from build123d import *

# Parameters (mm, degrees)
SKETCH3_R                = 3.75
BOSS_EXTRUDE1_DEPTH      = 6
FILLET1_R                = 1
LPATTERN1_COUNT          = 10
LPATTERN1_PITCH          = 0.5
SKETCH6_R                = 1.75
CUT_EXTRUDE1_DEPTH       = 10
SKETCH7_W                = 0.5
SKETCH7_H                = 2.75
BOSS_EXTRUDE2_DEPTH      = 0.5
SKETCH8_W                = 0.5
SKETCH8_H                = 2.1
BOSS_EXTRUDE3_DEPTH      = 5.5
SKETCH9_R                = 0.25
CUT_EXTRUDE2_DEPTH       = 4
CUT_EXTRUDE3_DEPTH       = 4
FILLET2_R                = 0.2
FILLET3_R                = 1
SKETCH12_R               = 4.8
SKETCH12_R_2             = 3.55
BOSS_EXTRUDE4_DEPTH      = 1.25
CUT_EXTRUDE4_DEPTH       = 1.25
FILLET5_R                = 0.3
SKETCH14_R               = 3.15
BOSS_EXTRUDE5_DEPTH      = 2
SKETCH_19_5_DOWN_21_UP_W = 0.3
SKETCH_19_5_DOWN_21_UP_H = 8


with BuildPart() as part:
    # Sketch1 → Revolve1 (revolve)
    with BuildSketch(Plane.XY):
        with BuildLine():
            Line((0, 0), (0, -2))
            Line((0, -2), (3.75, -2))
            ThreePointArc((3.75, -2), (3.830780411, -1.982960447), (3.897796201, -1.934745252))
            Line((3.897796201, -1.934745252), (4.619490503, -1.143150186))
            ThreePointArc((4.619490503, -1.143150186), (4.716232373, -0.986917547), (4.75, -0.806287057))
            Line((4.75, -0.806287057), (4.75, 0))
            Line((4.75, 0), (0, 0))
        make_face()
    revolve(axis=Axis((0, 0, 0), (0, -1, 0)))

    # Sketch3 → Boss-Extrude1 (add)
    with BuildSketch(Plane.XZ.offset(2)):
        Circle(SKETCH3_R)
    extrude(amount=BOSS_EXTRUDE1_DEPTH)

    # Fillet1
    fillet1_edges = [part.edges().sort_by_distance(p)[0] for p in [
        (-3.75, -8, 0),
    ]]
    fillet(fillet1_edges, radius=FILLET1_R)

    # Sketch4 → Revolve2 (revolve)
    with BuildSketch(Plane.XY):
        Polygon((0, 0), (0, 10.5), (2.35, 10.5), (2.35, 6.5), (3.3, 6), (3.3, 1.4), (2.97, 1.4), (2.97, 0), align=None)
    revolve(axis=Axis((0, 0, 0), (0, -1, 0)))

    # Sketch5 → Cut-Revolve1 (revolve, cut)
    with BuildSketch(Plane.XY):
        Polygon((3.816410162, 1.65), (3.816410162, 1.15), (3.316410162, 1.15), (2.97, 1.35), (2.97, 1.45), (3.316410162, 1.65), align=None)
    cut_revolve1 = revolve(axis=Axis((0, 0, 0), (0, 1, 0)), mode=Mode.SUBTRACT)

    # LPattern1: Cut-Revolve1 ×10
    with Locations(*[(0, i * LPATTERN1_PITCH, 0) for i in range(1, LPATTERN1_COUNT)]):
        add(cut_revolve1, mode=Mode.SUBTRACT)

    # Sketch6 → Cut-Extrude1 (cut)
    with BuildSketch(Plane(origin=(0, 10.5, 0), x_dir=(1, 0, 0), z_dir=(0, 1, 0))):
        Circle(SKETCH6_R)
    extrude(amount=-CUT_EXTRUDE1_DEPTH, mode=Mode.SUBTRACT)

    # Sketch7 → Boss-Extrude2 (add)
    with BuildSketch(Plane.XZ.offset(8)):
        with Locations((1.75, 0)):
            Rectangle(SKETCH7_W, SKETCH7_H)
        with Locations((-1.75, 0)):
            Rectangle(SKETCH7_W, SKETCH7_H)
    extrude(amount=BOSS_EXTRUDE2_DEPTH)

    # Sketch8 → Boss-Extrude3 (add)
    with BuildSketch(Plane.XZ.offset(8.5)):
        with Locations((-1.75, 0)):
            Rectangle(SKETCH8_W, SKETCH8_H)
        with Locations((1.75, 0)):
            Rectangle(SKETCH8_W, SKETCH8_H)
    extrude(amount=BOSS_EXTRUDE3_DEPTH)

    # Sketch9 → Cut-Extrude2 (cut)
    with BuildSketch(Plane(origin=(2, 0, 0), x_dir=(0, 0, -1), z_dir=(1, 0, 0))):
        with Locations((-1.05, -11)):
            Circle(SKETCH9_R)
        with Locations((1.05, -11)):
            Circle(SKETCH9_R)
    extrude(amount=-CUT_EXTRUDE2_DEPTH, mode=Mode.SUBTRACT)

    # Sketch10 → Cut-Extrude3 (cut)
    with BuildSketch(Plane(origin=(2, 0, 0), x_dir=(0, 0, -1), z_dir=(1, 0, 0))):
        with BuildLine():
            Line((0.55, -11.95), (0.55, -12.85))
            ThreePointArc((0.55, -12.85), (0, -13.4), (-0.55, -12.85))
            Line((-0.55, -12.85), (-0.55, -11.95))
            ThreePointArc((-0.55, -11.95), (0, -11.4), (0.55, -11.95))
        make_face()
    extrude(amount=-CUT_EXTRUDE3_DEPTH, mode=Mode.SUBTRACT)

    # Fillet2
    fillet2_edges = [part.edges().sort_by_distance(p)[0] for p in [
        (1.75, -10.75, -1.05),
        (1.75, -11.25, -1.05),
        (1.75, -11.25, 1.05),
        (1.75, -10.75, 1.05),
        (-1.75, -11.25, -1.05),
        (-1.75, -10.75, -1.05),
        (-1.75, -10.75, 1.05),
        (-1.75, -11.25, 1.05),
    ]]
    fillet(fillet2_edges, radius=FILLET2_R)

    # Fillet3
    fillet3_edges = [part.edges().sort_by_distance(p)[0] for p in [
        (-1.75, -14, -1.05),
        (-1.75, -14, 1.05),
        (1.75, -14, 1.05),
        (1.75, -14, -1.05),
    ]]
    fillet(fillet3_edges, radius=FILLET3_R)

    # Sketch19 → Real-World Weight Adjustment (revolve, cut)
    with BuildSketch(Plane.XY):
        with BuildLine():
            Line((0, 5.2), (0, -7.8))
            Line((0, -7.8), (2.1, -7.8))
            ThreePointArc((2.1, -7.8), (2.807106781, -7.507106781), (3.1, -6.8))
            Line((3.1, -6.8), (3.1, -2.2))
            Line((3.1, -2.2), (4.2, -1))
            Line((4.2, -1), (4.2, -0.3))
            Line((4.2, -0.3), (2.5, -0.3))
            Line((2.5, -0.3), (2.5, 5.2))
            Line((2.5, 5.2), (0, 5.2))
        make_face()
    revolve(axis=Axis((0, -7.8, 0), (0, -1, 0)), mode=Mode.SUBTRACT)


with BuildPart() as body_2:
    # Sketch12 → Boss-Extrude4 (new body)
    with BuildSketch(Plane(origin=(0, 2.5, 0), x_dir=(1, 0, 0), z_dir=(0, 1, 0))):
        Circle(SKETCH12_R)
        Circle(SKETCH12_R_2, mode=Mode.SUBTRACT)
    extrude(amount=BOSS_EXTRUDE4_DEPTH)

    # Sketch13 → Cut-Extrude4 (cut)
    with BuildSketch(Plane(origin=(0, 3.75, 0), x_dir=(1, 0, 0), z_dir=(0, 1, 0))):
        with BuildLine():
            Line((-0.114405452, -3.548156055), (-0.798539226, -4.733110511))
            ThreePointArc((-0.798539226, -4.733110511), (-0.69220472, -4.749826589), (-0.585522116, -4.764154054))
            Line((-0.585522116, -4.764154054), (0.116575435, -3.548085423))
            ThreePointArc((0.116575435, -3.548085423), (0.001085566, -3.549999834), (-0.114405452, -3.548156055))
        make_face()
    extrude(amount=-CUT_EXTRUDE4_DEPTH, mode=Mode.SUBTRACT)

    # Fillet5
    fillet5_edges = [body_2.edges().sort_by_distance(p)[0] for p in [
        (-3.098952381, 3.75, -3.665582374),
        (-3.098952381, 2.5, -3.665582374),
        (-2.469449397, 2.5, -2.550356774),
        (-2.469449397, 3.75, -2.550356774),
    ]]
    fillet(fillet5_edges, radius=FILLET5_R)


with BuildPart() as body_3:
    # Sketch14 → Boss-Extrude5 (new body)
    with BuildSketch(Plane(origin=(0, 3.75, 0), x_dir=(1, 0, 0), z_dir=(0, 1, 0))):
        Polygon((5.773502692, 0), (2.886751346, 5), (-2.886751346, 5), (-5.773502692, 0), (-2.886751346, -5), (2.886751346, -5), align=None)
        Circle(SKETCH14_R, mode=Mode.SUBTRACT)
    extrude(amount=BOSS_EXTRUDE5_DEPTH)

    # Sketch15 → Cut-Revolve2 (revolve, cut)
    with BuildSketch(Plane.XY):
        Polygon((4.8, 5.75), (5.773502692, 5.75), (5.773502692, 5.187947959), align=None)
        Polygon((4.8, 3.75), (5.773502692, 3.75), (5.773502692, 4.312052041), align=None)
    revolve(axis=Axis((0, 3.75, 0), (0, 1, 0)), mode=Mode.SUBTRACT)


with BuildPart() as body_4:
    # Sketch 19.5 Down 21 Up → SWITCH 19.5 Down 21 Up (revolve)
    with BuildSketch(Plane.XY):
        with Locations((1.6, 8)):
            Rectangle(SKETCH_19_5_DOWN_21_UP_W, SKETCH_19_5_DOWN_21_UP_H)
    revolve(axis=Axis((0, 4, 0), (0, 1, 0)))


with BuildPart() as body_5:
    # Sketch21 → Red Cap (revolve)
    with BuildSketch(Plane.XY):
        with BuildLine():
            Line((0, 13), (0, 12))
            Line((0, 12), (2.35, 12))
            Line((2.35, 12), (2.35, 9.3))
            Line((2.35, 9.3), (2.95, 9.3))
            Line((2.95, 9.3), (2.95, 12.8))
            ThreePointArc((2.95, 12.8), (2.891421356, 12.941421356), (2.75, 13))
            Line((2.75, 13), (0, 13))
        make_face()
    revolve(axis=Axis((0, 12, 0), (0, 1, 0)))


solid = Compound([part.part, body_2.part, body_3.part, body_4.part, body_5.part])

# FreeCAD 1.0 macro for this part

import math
import FreeCAD as App
import Part
import Sketcher

V = App.Vector
Q = App.Units.Quantity


def edges_at(feature, points):
    """Names of the edges that pass closest to the given points."""
    edges = feature.Shape.Edges
    near = lambda p: min(range(len(edges)), key=lambda i: edges[i].distToShape(Part.Vertex(*p))[0])
    return sorted({f"Edge{near(p) + 1}" for p in points})

doc = App.newDocument("Part")
body = doc.addObject("PartDesign::Body", "Body")

# Sketch on XY plane
sketch1 = body.newObject("Sketcher::SketchObject", "Sketch")
sketch1.AttachmentSupport = (doc.getObject("XY_Plane"), [""])
sketch1.MapMode = "FlatFace"
sketch1.addGeometry(Part.LineSegment(V(0, 0, 0), V(0, -2, 0)), False)
sketch1.addGeometry(Part.LineSegment(V(0, -2, 0), V(3.75, -2, 0)), False)
sketch1.addGeometry(Part.ArcOfCircle(Part.Circle(V(3.75, -1.8, 0), V(0, 0, 1), 0.2), math.radians(-90), math.radians(-42)), False)
sketch1.addGeometry(Part.LineSegment(V(3.9, -1.93, 0), V(4.62, -1.14, 0)), False)
sketch1.addGeometry(Part.ArcOfCircle(Part.Circle(V(4.25, -0.81, 0), V(0, 0, 1), 0.5), math.radians(-42), math.radians(0)), False)
sketch1.addGeometry(Part.LineSegment(V(4.75, -0.81, 0), V(4.75, 0, 0)), False)
sketch1.addGeometry(Part.LineSegment(V(4.75, 0, 0), V(0, 0, 0)), False)
sketch1.addConstraint(Sketcher.Constraint("Coincident", 0, 2, 1, 1))
sketch1.addConstraint(Sketcher.Constraint("Tangent", 1, 2, 2, 1))
sketch1.addConstraint(Sketcher.Constraint("Tangent", 2, 2, 3, 1))
sketch1.addConstraint(Sketcher.Constraint("Tangent", 3, 2, 4, 1))
sketch1.addConstraint(Sketcher.Constraint("Tangent", 4, 2, 5, 1))
sketch1.addConstraint(Sketcher.Constraint("Coincident", 5, 2, 6, 1))
sketch1.addConstraint(Sketcher.Constraint("Coincident", 6, 2, 0, 1))
sketch1.addConstraint(Sketcher.Constraint("Vertical", 0))
sketch1.addConstraint(Sketcher.Constraint("Horizontal", 1))
sketch1.addConstraint(Sketcher.Constraint("Vertical", 5))
sketch1.addConstraint(Sketcher.Constraint("Horizontal", 6))
sketch1.addConstraint(Sketcher.Constraint("Coincident", 6, 2, -1, 1))
sketch1.addConstraint(Sketcher.Constraint("Radius", 2, 0.2))
sketch1.addConstraint(Sketcher.Constraint("Radius", 4, 0.5))
sketch1.addConstraint(Sketcher.Constraint("DistanceY", 0, 2, 0, 1, 2.0))
sketch1.addConstraint(Sketcher.Constraint("DistanceX", 2, 3, 4, 2, 1.0))
sketch1.addConstraint(Sketcher.Constraint("DistanceX", 1, 1, 1, 2, 3.75))
sketch1.addConstraint(Sketcher.Constraint("Distance", 3, 1.071198))
revolution = body.newObject("PartDesign::Revolution", "Revolution")
revolution.Profile = sketch1
revolution.ReferenceAxis = (sketch1, ["V_Axis"])
revolution.Angle = 360

# Sketch on XZ plane
sketch2 = body.newObject("Sketcher::SketchObject", "Sketch001")
sketch2.AttachmentSupport = (doc.getObject("XZ_Plane"), [""])
sketch2.MapMode = "FlatFace"
sketch2.AttachmentOffset = App.Placement(V(0, 0, 2), App.Rotation())
sketch2.addGeometry(Part.Circle(V(0, 0, 0), V(0, 0, 1), 3.8), False)
sketch2.addConstraint(Sketcher.Constraint("Coincident", 0, 3, -1, 1))
sketch2.addConstraint(Sketcher.Constraint("Diameter", 0, 7.5))
pad1 = body.newObject("PartDesign::Pad", "Pad")
pad1.Profile = sketch2
pad1.Length = 6
doc.recompute()

fillet = body.newObject("PartDesign::Fillet", "Fillet")
fillet.Base = (pad1, edges_at(pad1, [(-3.75, -8, 0)]))
fillet.Radius = 1

# Sketch on XY plane
sketch3 = body.newObject("Sketcher::SketchObject", "Sketch002")
sketch3.AttachmentSupport = (doc.getObject("XY_Plane"), [""])
sketch3.MapMode = "FlatFace"
sketch3.addGeometry(Part.LineSegment(V(0, 10.5, 0), V(0, 0, 0)), False)
sketch3.addGeometry(Part.LineSegment(V(0, 0, 0), V(2.97, 0, 0)), False)
sketch3.addGeometry(Part.LineSegment(V(2.97, 0, 0), V(2.97, 1.4, 0)), False)
sketch3.addGeometry(Part.LineSegment(V(2.97, 1.4, 0), V(3.3, 1.4, 0)), False)
sketch3.addGeometry(Part.LineSegment(V(3.3, 1.4, 0), V(3.3, 6, 0)), False)
sketch3.addGeometry(Part.LineSegment(V(3.3, 6, 0), V(2.35, 6.5, 0)), False)
sketch3.addGeometry(Part.LineSegment(V(2.35, 6.5, 0), V(2.35, 10.5, 0)), False)
sketch3.addGeometry(Part.LineSegment(V(2.35, 10.5, 0), V(0, 10.5, 0)), False)
sketch3.addConstraint(Sketcher.Constraint("Coincident", 0, 2, 1, 1))
sketch3.addConstraint(Sketcher.Constraint("Coincident", 1, 2, 2, 1))
sketch3.addConstraint(Sketcher.Constraint("Coincident", 2, 2, 3, 1))
sketch3.addConstraint(Sketcher.Constraint("Coincident", 3, 2, 4, 1))
sketch3.addConstraint(Sketcher.Constraint("Coincident", 4, 2, 5, 1))
sketch3.addConstraint(Sketcher.Constraint("Coincident", 5, 2, 6, 1))
sketch3.addConstraint(Sketcher.Constraint("Coincident", 6, 2, 7, 1))
sketch3.addConstraint(Sketcher.Constraint("Coincident", 7, 2, 0, 1))
sketch3.addConstraint(Sketcher.Constraint("Vertical", 0))
sketch3.addConstraint(Sketcher.Constraint("Horizontal", 1))
sketch3.addConstraint(Sketcher.Constraint("Vertical", 2))
sketch3.addConstraint(Sketcher.Constraint("Horizontal", 3))
sketch3.addConstraint(Sketcher.Constraint("Vertical", 4))
sketch3.addConstraint(Sketcher.Constraint("Vertical", 6))
sketch3.addConstraint(Sketcher.Constraint("Horizontal", 7))
sketch3.addConstraint(Sketcher.Constraint("Coincident", 0, 2, -1, 1))
sketch3.addConstraint(Sketcher.Constraint("DistanceY", 6, 1, 6, 2, 4.0))
sketch3.addConstraint(Sketcher.Constraint("DistanceY", 0, 2, 0, 1, 10.5))
sketch3.addConstraint(Sketcher.Constraint("DistanceY", 2, 1, 2, 2, 1.4))
sketch3.addConstraint(Sketcher.Constraint("DistanceY", 4, 1, 4, 2, 4.6))
sketch3.addConstraint(Sketcher.Constraint("DistanceX", 1, 1, 1, 2, 2.97))
sketch3.addConstraint(Sketcher.Constraint("DistanceX", 3, 1, 3, 2, 0.33))
sketch3.addConstraint(Sketcher.Constraint("DistanceX", 7, 2, 7, 1, 2.35))
revolution2 = body.newObject("PartDesign::Revolution", "Revolution001")
revolution2.Profile = sketch3
revolution2.ReferenceAxis = (sketch3, ["V_Axis"])
revolution2.Angle = 360

# Sketch on XY plane
sketch4 = body.newObject("Sketcher::SketchObject", "Sketch003")
sketch4.AttachmentSupport = (doc.getObject("XY_Plane"), [""])
sketch4.MapMode = "FlatFace"
sketch4.addGeometry(Part.LineSegment(V(3.82, 1.15, 0), V(3.82, 1.65, 0)), False)
sketch4.addGeometry(Part.LineSegment(V(3.82, 1.65, 0), V(3.32, 1.65, 0)), False)
sketch4.addGeometry(Part.LineSegment(V(3.32, 1.65, 0), V(2.97, 1.45, 0)), False)
sketch4.addGeometry(Part.LineSegment(V(2.97, 1.45, 0), V(2.97, 1.35, 0)), False)
sketch4.addGeometry(Part.LineSegment(V(2.97, 1.35, 0), V(3.32, 1.15, 0)), False)
sketch4.addGeometry(Part.LineSegment(V(3.32, 1.15, 0), V(3.82, 1.15, 0)), False)
sketch4.addConstraint(Sketcher.Constraint("Coincident", 0, 2, 1, 1))
sketch4.addConstraint(Sketcher.Constraint("Coincident", 1, 2, 2, 1))
sketch4.addConstraint(Sketcher.Constraint("Coincident", 2, 2, 3, 1))
sketch4.addConstraint(Sketcher.Constraint("Coincident", 3, 2, 4, 1))
sketch4.addConstraint(Sketcher.Constraint("Coincident", 4, 2, 5, 1))
sketch4.addConstraint(Sketcher.Constraint("Coincident", 5, 2, 0, 1))
sketch4.addConstraint(Sketcher.Constraint("Vertical", 0))
sketch4.addConstraint(Sketcher.Constraint("Horizontal", 1))
sketch4.addConstraint(Sketcher.Constraint("Vertical", 3))
sketch4.addConstraint(Sketcher.Constraint("Horizontal", 5))
sketch4.addConstraint(Sketcher.Constraint("Vertical", 1, 2, 4, 2))
sketch4.addConstraint(Sketcher.Constraint("Equal", 5, 0))
sketch4.addConstraint(Sketcher.Constraint("Equal", 2, 4))
sketch4.addConstraint(Sketcher.Constraint("Angle", 2, Q("-150 deg")))
sketch4.addConstraint(Sketcher.Constraint("DistanceX", 1, 2, 1, 1, 0.5))
sketch4.addConstraint(Sketcher.Constraint("DistanceY", 3, 2, 3, 1, 0.1))
sketch4.addConstraint(Sketcher.Constraint("DistanceY", -1, 1, 0, 2, 1.65))
sketch4.addConstraint(Sketcher.Constraint("DistanceX", -1, 1, 2, 2, 2.97))
groove = body.newObject("PartDesign::Groove", "Groove")
groove.Profile = sketch4
groove.ReferenceAxis = (sketch4, ["V_Axis"])
groove.Angle = 360
doc.recompute()

linearpattern = body.newObject("PartDesign::LinearPattern", "LinearPattern")
linearpattern.Originals = [groove]
linearpattern.Direction = (doc.getObject("Y_Axis"), [""])
linearpattern.Mode = "offset"
linearpattern.Offset = 0.5
linearpattern.Occurrences = 10
body.Tip = linearpattern

# Sketch on XZ plane
sketch5 = body.newObject("Sketcher::SketchObject", "Sketch004")
sketch5.AttachmentSupport = (doc.getObject("XZ_Plane"), [""])
sketch5.MapMode = "FlatFace"
sketch5.AttachmentOffset = App.Placement(V(0, 0, -10.5), App.Rotation())
sketch5.addGeometry(Part.Circle(V(0, 0, 0), V(0, 0, 1), 1.8), False)
sketch5.addConstraint(Sketcher.Constraint("Coincident", 0, 3, -1, 1))
sketch5.addConstraint(Sketcher.Constraint("Diameter", 0, 3.5))
pocket1 = body.newObject("PartDesign::Pocket", "Pocket")
pocket1.Profile = sketch5
pocket1.Length = 10
pocket1.Reversed = True

# Sketch on XZ plane
sketch6 = body.newObject("Sketcher::SketchObject", "Sketch005")
sketch6.AttachmentSupport = (doc.getObject("XZ_Plane"), [""])
sketch6.MapMode = "FlatFace"
sketch6.AttachmentOffset = App.Placement(V(0, 0, 8), App.Rotation())
sketch6.addGeometry(Part.LineSegment(V(1.5, 1.4, 0), V(1.5, -1.4, 0)), False)
sketch6.addGeometry(Part.LineSegment(V(1.5, -1.4, 0), V(2, -1.4, 0)), False)
sketch6.addGeometry(Part.LineSegment(V(2, -1.4, 0), V(2, 1.4, 0)), False)
sketch6.addGeometry(Part.LineSegment(V(2, 1.4, 0), V(1.5, 1.4, 0)), False)
sketch6.addGeometry(Part.LineSegment(V(-2, 1.4, 0), V(-2, -1.4, 0)), False)
sketch6.addGeometry(Part.LineSegment(V(-2, -1.4, 0), V(-1.5, -1.4, 0)), False)
sketch6.addGeometry(Part.LineSegment(V(-1.5, -1.4, 0), V(-1.5, 1.4, 0)), False)
sketch6.addGeometry(Part.LineSegment(V(-1.5, 1.4, 0), V(-2, 1.4, 0)), False)
sketch6.addConstraint(Sketcher.Constraint("Coincident", 0, 2, 1, 1))
sketch6.addConstraint(Sketcher.Constraint("Coincident", 1, 2, 2, 1))
sketch6.addConstraint(Sketcher.Constraint("Coincident", 2, 2, 3, 1))
sketch6.addConstraint(Sketcher.Constraint("Coincident", 3, 2, 0, 1))
sketch6.addConstraint(Sketcher.Constraint("Coincident", 4, 2, 5, 1))
sketch6.addConstraint(Sketcher.Constraint("Coincident", 5, 2, 6, 1))
sketch6.addConstraint(Sketcher.Constraint("Coincident", 6, 2, 7, 1))
sketch6.addConstraint(Sketcher.Constraint("Coincident", 7, 2, 4, 1))
sketch6.addConstraint(Sketcher.Constraint("Vertical", 0))
sketch6.addConstraint(Sketcher.Constraint("Horizontal", 1))
sketch6.addConstraint(Sketcher.Constraint("Vertical", 2))
sketch6.addConstraint(Sketcher.Constraint("Horizontal", 3))
sketch6.addConstraint(Sketcher.Constraint("Vertical", 4))
sketch6.addConstraint(Sketcher.Constraint("Horizontal", 5))
sketch6.addConstraint(Sketcher.Constraint("Vertical", 6))
sketch6.addConstraint(Sketcher.Constraint("Horizontal", 7))
sketch6.addConstraint(Sketcher.Constraint("Symmetric", 2, 2, 4, 2, -1, 1))
sketch6.addConstraint(Sketcher.Constraint("Symmetric", 0, 2, 6, 2, -1, 1))
sketch6.addConstraint(Sketcher.Constraint("Horizontal", 1, 2, 4, 2))
sketch6.addConstraint(Sketcher.Constraint("DistanceX", 1, 1, 1, 2, 0.5))
sketch6.addConstraint(Sketcher.Constraint("DistanceX", -1, 1, 1, 2, 2.0))
sketch6.addConstraint(Sketcher.Constraint("DistanceY", 0, 2, 0, 1, 2.75))
pad2 = body.newObject("PartDesign::Pad", "Pad001")
pad2.Profile = sketch6
pad2.Length = 0.5

# Sketch on XZ plane
sketch7 = body.newObject("Sketcher::SketchObject", "Sketch006")
sketch7.AttachmentSupport = (doc.getObject("XZ_Plane"), [""])
sketch7.MapMode = "FlatFace"
sketch7.AttachmentOffset = App.Placement(V(0, 0, 8.5), App.Rotation())
sketch7.addGeometry(Part.LineSegment(V(-2, 1.1, 0), V(-2, -1.1, 0)), False)
sketch7.addGeometry(Part.LineSegment(V(-2, -1.1, 0), V(-1.5, -1.1, 0)), False)
sketch7.addGeometry(Part.LineSegment(V(-1.5, -1.1, 0), V(-1.5, 1.1, 0)), False)
sketch7.addGeometry(Part.LineSegment(V(-1.5, 1.1, 0), V(-2, 1.1, 0)), False)
sketch7.addGeometry(Part.LineSegment(V(1.5, 1.1, 0), V(1.5, -1.1, 0)), False)
sketch7.addGeometry(Part.LineSegment(V(1.5, -1.1, 0), V(2, -1.1, 0)), False)
sketch7.addGeometry(Part.LineSegment(V(2, -1.1, 0), V(2, 1.1, 0)), False)
sketch7.addGeometry(Part.LineSegment(V(2, 1.1, 0), V(1.5, 1.1, 0)), False)
sketch7.addConstraint(Sketcher.Constraint("Coincident", 0, 2, 1, 1))
sketch7.addConstraint(Sketcher.Constraint("Coincident", 1, 2, 2, 1))
sketch7.addConstraint(Sketcher.Constraint("Coincident", 2, 2, 3, 1))
sketch7.addConstraint(Sketcher.Constraint("Coincident", 3, 2, 0, 1))
sketch7.addConstraint(Sketcher.Constraint("Coincident", 4, 2, 5, 1))
sketch7.addConstraint(Sketcher.Constraint("Coincident", 5, 2, 6, 1))
sketch7.addConstraint(Sketcher.Constraint("Coincident", 6, 2, 7, 1))
sketch7.addConstraint(Sketcher.Constraint("Coincident", 7, 2, 4, 1))
sketch7.addConstraint(Sketcher.Constraint("Vertical", 0))
sketch7.addConstraint(Sketcher.Constraint("Horizontal", 1))
sketch7.addConstraint(Sketcher.Constraint("Vertical", 2))
sketch7.addConstraint(Sketcher.Constraint("Horizontal", 3))
sketch7.addConstraint(Sketcher.Constraint("Vertical", 4))
sketch7.addConstraint(Sketcher.Constraint("Horizontal", 5))
sketch7.addConstraint(Sketcher.Constraint("Vertical", 6))
sketch7.addConstraint(Sketcher.Constraint("Horizontal", 7))
sketch7.addConstraint(Sketcher.Constraint("Symmetric", 2, 2, 4, 2, -1, 1))
sketch7.addConstraint(Sketcher.Constraint("Symmetric", 0, 2, 6, 2, -1, 1))
sketch7.addConstraint(Sketcher.Constraint("Horizontal", 1, 2, 4, 2))
sketch7.addConstraint(Sketcher.Constraint("DistanceX", 1, 1, 1, 2, 0.5))
sketch7.addConstraint(Sketcher.Constraint("DistanceY", 0, 2, 0, 1, 2.1))
sketch7.addConstraint(Sketcher.Constraint("DistanceX", 0, 2, -1, 1, 2.0))
pad3 = body.newObject("PartDesign::Pad", "Pad002")
pad3.Profile = sketch7
pad3.Length = 5.5

# Sketch on YZ plane
sketch8 = body.newObject("Sketcher::SketchObject", "Sketch007")
sketch8.AttachmentSupport = (doc.getObject("YZ_Plane"), [""])
sketch8.MapMode = "FlatFace"
sketch8.AttachmentOffset = App.Placement(V(0, 0, 2), App.Rotation())
sketch8.addGeometry(Part.Circle(V(-11, 1.05, 0), V(0, 0, 1), 0.25), False)
sketch8.addGeometry(Part.Circle(V(-11, -1.05, 0), V(0, 0, 1), 0.25), False)
sketch8.addConstraint(Sketcher.Constraint("Equal", 0, 1))
sketch8.addConstraint(Sketcher.Constraint("Symmetric", 0, 3, 1, 3, -1))
sketch8.addConstraint(Sketcher.Constraint("Diameter", 0, 0.5))
sketch8.addConstraint(Sketcher.Constraint("DistanceX", 0, 3, -1, 1, 11.0))
sketch8.addConstraint(Sketcher.Constraint("DistanceY", 1, 3, 0, 3, 2.1))
pocket2 = body.newObject("PartDesign::Pocket", "Pocket001")
pocket2.Profile = sketch8
pocket2.Length = 4

# Sketch on YZ plane
sketch9 = body.newObject("Sketcher::SketchObject", "Sketch008")
sketch9.AttachmentSupport = (doc.getObject("YZ_Plane"), [""])
sketch9.MapMode = "FlatFace"
sketch9.AttachmentOffset = App.Placement(V(0, 0, 2), App.Rotation())
sketch9.addGeometry(Part.LineSegment(V(-12.8, -0.6, 0), V(-11.9, -0.6, 0)), False)
sketch9.addGeometry(Part.ArcOfCircle(Part.Circle(V(-11.9, 0, 0), V(0, 0, 1), 0.6), math.radians(-90), math.radians(90)), False)
sketch9.addGeometry(Part.LineSegment(V(-11.9, 0.6, 0), V(-12.8, 0.6, 0)), False)
sketch9.addGeometry(Part.ArcOfCircle(Part.Circle(V(-12.8, 0, 0), V(0, 0, 1), 0.6), math.radians(90), math.radians(270)), False)
sketch9.addConstraint(Sketcher.Constraint("Tangent", 0, 2, 1, 1))
sketch9.addConstraint(Sketcher.Constraint("Tangent", 1, 2, 2, 1))
sketch9.addConstraint(Sketcher.Constraint("Tangent", 2, 2, 3, 1))
sketch9.addConstraint(Sketcher.Constraint("Tangent", 3, 2, 0, 1))
sketch9.addConstraint(Sketcher.Constraint("Horizontal", 0))
sketch9.addConstraint(Sketcher.Constraint("Horizontal", 2))
sketch9.addConstraint(Sketcher.Constraint("PointOnObject", 1, 3, -1))
sketch9.addConstraint(Sketcher.Constraint("Radius", 1, 0.55))
sketch9.addConstraint(Sketcher.Constraint("DistanceX", 0, 1, 0, 2, 0.9))
sketch9.addConstraint(Sketcher.Constraint("DistanceX", 1, 3, -1, 1, 11.95))
pocket3 = body.newObject("PartDesign::Pocket", "Pocket002")
pocket3.Profile = sketch9
pocket3.Length = 4
doc.recompute()

fillet2 = body.newObject("PartDesign::Fillet", "Fillet001")
fillet2.Base = (pocket3, edges_at(pocket3, [
    (1.75, -10.75, -1.05),
    (1.75, -11.25, -1.05),
    (1.75, -11.25, 1.05),
    (1.75, -10.75, 1.05),
    (-1.75, -11.25, -1.05),
    (-1.75, -10.75, -1.05),
    (-1.75, -10.75, 1.05),
    (-1.75, -11.25, 1.05),
]))
fillet2.Radius = 0.2
doc.recompute()

fillet3 = body.newObject("PartDesign::Fillet", "Fillet002")
fillet3.Base = (fillet2, edges_at(fillet2, [
    (-1.75, -14, -1.05),
    (-1.75, -14, 1.05),
    (1.75, -14, 1.05),
    (1.75, -14, -1.05),
]))
fillet3.Radius = 1

# Sketch on XY plane
sketch10 = body.newObject("Sketcher::SketchObject", "Sketch009")
sketch10.AttachmentSupport = (doc.getObject("XY_Plane"), [""])
sketch10.MapMode = "FlatFace"
sketch10.addGeometry(Part.LineSegment(V(0, 5.2, 0), V(0, -7.8, 0)), False)
sketch10.addGeometry(Part.LineSegment(V(0, -7.8, 0), V(2.1, -7.8, 0)), False)
sketch10.addGeometry(Part.ArcOfCircle(Part.Circle(V(2.1, -6.8, 0), V(0, 0, 1), 1), math.radians(-90), math.radians(0)), False)
sketch10.addGeometry(Part.LineSegment(V(3.1, -6.8, 0), V(3.1, -2.2, 0)), False)
sketch10.addGeometry(Part.LineSegment(V(3.1, -2.2, 0), V(4.2, -1, 0)), False)
sketch10.addGeometry(Part.LineSegment(V(4.2, -1, 0), V(4.2, -0.3, 0)), False)
sketch10.addGeometry(Part.LineSegment(V(4.2, -0.3, 0), V(2.5, -0.3, 0)), False)
sketch10.addGeometry(Part.LineSegment(V(2.5, -0.3, 0), V(2.5, 5.2, 0)), False)
sketch10.addGeometry(Part.LineSegment(V(2.5, 5.2, 0), V(0, 5.2, 0)), False)
sketch10.addConstraint(Sketcher.Constraint("Coincident", 0, 2, 1, 1))
sketch10.addConstraint(Sketcher.Constraint("Tangent", 1, 2, 2, 1))
sketch10.addConstraint(Sketcher.Constraint("Tangent", 2, 2, 3, 1))
sketch10.addConstraint(Sketcher.Constraint("Coincident", 3, 2, 4, 1))
sketch10.addConstraint(Sketcher.Constraint("Coincident", 4, 2, 5, 1))
sketch10.addConstraint(Sketcher.Constraint("Coincident", 5, 2, 6, 1))
sketch10.addConstraint(Sketcher.Constraint("Coincident", 6, 2, 7, 1))
sketch10.addConstraint(Sketcher.Constraint("Coincident", 7, 2, 8, 1))
sketch10.addConstraint(Sketcher.Constraint("Coincident", 8, 2, 0, 1))
sketch10.addConstraint(Sketcher.Constraint("Vertical", 0))
sketch10.addConstraint(Sketcher.Constraint("Horizontal", 1))
sketch10.addConstraint(Sketcher.Constraint("Vertical", 3))
sketch10.addConstraint(Sketcher.Constraint("Vertical", 5))
sketch10.addConstraint(Sketcher.Constraint("Horizontal", 6))
sketch10.addConstraint(Sketcher.Constraint("Vertical", 7))
sketch10.addConstraint(Sketcher.Constraint("Horizontal", 8))
sketch10.addConstraint(Sketcher.Constraint("PointOnObject", 0, 2, -2))
sketch10.addConstraint(Sketcher.Constraint("Radius", 2, 1.0))
sketch10.addConstraint(Sketcher.Constraint("DistanceY", 0, 2, 0, 1, 13.0))
sketch10.addConstraint(Sketcher.Constraint("DistanceX", 1, 1, 1, 2, 2.1))
sketch10.addConstraint(Sketcher.Constraint("DistanceX", 6, 2, 6, 1, 1.7))
sketch10.addConstraint(Sketcher.Constraint("DistanceX", 8, 2, 8, 1, 2.5))
sketch10.addConstraint(Sketcher.Constraint("DistanceY", 3, 1, 3, 2, 4.6))
sketch10.addConstraint(Sketcher.Constraint("DistanceY", 5, 1, 5, 2, 0.7))
sketch10.addConstraint(Sketcher.Constraint("DistanceY", 7, 1, 7, 2, 5.5))
sketch10.addConstraint(Sketcher.Constraint("DistanceY", 4, 2, -1, 1, 1.0))
groove2 = body.newObject("PartDesign::Groove", "Groove001")
groove2.Profile = sketch10
groove2.ReferenceAxis = (sketch10, ["V_Axis"])
groove2.Angle = 360
body2 = doc.addObject("PartDesign::Body", "Body001")

# Sketch on XZ plane
sketch11 = body2.newObject("Sketcher::SketchObject", "Sketch010")
sketch11.AttachmentSupport = (doc.getObject("XZ_Plane001"), [""])
sketch11.MapMode = "FlatFace"
sketch11.AttachmentOffset = App.Placement(V(0, 0, -2.5), App.Rotation())
sketch11.addGeometry(Part.Circle(V(0, 0, 0), V(0, 0, 1), 4.8), False)
sketch11.addGeometry(Part.Circle(V(0, 0, 0), V(0, 0, 1), 3.5), False)
sketch11.addConstraint(Sketcher.Constraint("Coincident", 0, 3, -1, 1))
sketch11.addConstraint(Sketcher.Constraint("Coincident", 1, 3, -1, 1))
sketch11.addConstraint(Sketcher.Constraint("Diameter", 0, 9.6))
sketch11.addConstraint(Sketcher.Constraint("Diameter", 1, 7.1))
pad4 = body2.newObject("PartDesign::Pad", "Pad003")
pad4.Profile = sketch11
pad4.Length = 1.25
pad4.Reversed = True

# Sketch on XZ plane
sketch12 = body2.newObject("Sketcher::SketchObject", "Sketch011")
sketch12.AttachmentSupport = (doc.getObject("XZ_Plane001"), [""])
sketch12.MapMode = "FlatFace"
sketch12.AttachmentOffset = App.Placement(V(0, 0, -3.75), App.Rotation())
sketch12.addGeometry(Part.LineSegment(V(-0.11, 3.55, 0), V(-0.8, 4.73, 0)), False)
sketch12.addGeometry(Part.ArcOfCircle(Part.Circle(V(0, 0, 0), V(0, 0, 1), 4.8), math.radians(97.01), math.radians(99.58)), False)
sketch12.addGeometry(Part.LineSegment(V(-0.59, 4.76, 0), V(0.12, 3.55, 0)), False)
sketch12.addGeometry(Part.ArcOfCircle(Part.Circle(V(0, 0, 0), V(0, 0, 1), 3.55), math.radians(88.12), math.radians(91.85)), False)
sketch12.addConstraint(Sketcher.Constraint("Coincident", 0, 2, 1, 2))
sketch12.addConstraint(Sketcher.Constraint("Coincident", 1, 1, 2, 1))
sketch12.addConstraint(Sketcher.Constraint("Coincident", 2, 2, 3, 1))
sketch12.addConstraint(Sketcher.Constraint("Coincident", 3, 2, 0, 1))
sketch12.addConstraint(Sketcher.Constraint("Coincident", 1, 3, -1, 1))
sketch12.addConstraint(Sketcher.Constraint("Coincident", 3, 3, -1, 1))
sketch12.addConstraint(Sketcher.Constraint("Parallel", 0, 2))
sketch12.addConstraint(Sketcher.Constraint("Radius", 1, 4.800001))
sketch12.addConstraint(Sketcher.Constraint("Angle", 0, Q("120 deg")))
sketch12.addConstraint(Sketcher.Constraint("Radius", 3, 3.55))
sketch12.addConstraint(Sketcher.Constraint("DistanceX", 0, 2, -1, 1, 0.798539))
sketch12.addConstraint(Sketcher.Constraint("DistanceY", 2, 2, 1, 1, 1.216069))
pocket4 = body2.newObject("PartDesign::Pocket", "Pocket003")
pocket4.Profile = sketch12
pocket4.Length = 1.25
pocket4.Reversed = True
doc.recompute()

fillet4 = body2.newObject("PartDesign::Fillet", "Fillet003")
fillet4.Base = (pocket4, edges_at(pocket4, [
    (-3.099, 3.75, -3.666),
    (-3.099, 2.5, -3.666),
    (-2.469, 2.5, -2.55),
    (-2.469, 3.75, -2.55),
]))
fillet4.Radius = 0.3
body3 = doc.addObject("PartDesign::Body", "Body002")

# Sketch on XZ plane
sketch13 = body3.newObject("Sketcher::SketchObject", "Sketch012")
sketch13.AttachmentSupport = (doc.getObject("XZ_Plane002"), [""])
sketch13.MapMode = "FlatFace"
sketch13.AttachmentOffset = App.Placement(V(0, 0, -3.75), App.Rotation())
sketch13.addGeometry(Part.LineSegment(V(5.8, 0, 0), V(2.9, -5, 0)), False)
sketch13.addGeometry(Part.LineSegment(V(2.9, -5, 0), V(-2.9, -5, 0)), False)
sketch13.addGeometry(Part.LineSegment(V(-2.9, -5, 0), V(-5.8, 0, 0)), False)
sketch13.addGeometry(Part.LineSegment(V(-5.8, 0, 0), V(-2.9, 5, 0)), False)
sketch13.addGeometry(Part.LineSegment(V(-2.9, 5, 0), V(2.9, 5, 0)), False)
sketch13.addGeometry(Part.LineSegment(V(2.9, 5, 0), V(5.8, 0, 0)), False)
sketch13.addGeometry(Part.Circle(V(0, 0, 0), V(0, 0, 1), 3.1), False)
sketch13.addConstraint(Sketcher.Constraint("Coincident", 0, 2, 1, 1))
sketch13.addConstraint(Sketcher.Constraint("Coincident", 1, 2, 2, 1))
sketch13.addConstraint(Sketcher.Constraint("Coincident", 2, 2, 3, 1))
sketch13.addConstraint(Sketcher.Constraint("Coincident", 3, 2, 4, 1))
sketch13.addConstraint(Sketcher.Constraint("Coincident", 4, 2, 5, 1))
sketch13.addConstraint(Sketcher.Constraint("Coincident", 5, 2, 0, 1))
sketch13.addConstraint(Sketcher.Constraint("Horizontal", 1))
sketch13.addConstraint(Sketcher.Constraint("Horizontal", 4))
sketch13.addConstraint(Sketcher.Constraint("Coincident", 6, 3, -1, 1))
sketch13.addConstraint(Sketcher.Constraint("Symmetric", 0, 2, 3, 2, -1, 1))
sketch13.addConstraint(Sketcher.Constraint("Symmetric", 2, 2, 5, 2, -1, 1))
sketch13.addConstraint(Sketcher.Constraint("PointOnObject", 2, 2, -1))
sketch13.addConstraint(Sketcher.Constraint("Parallel", 2, 5))
sketch13.addConstraint(Sketcher.Constraint("Vertical", 1, 2, 3, 2))
sketch13.addConstraint(Sketcher.Constraint("Diameter", 6, 6.3))
sketch13.addConstraint(Sketcher.Constraint("Angle", 0, Q("-120 deg")))
sketch13.addConstraint(Sketcher.Constraint("DistanceY", 0, 2, -1, 1, 5.0))
sketch13.addConstraint(Sketcher.Constraint("DistanceX", 1, 2, 1, 1, 5.773503))
pad5 = body3.newObject("PartDesign::Pad", "Pad004")
pad5.Profile = sketch13
pad5.Length = 2
pad5.Reversed = True

# Sketch on XY plane
sketch14 = body3.newObject("Sketcher::SketchObject", "Sketch013")
sketch14.AttachmentSupport = (doc.getObject("XY_Plane002"), [""])
sketch14.MapMode = "FlatFace"
sketch14.addGeometry(Part.LineSegment(V(5.8, 5.8, 0), V(4.8, 5.8, 0)), False)
sketch14.addGeometry(Part.LineSegment(V(4.8, 5.8, 0), V(5.8, 5.2, 0)), False)
sketch14.addGeometry(Part.LineSegment(V(5.8, 5.2, 0), V(5.8, 5.8, 0)), False)
sketch14.addGeometry(Part.LineSegment(V(4.8, 3.8, 0), V(5.8, 3.8, 0)), False)
sketch14.addGeometry(Part.LineSegment(V(5.8, 3.8, 0), V(5.8, 4.3, 0)), False)
sketch14.addGeometry(Part.LineSegment(V(5.8, 4.3, 0), V(4.8, 3.8, 0)), False)
sketch14.addConstraint(Sketcher.Constraint("Coincident", 0, 2, 1, 1))
sketch14.addConstraint(Sketcher.Constraint("Coincident", 1, 2, 2, 1))
sketch14.addConstraint(Sketcher.Constraint("Coincident", 2, 2, 0, 1))
sketch14.addConstraint(Sketcher.Constraint("Coincident", 3, 2, 4, 1))
sketch14.addConstraint(Sketcher.Constraint("Coincident", 4, 2, 5, 1))
sketch14.addConstraint(Sketcher.Constraint("Coincident", 5, 2, 3, 1))
sketch14.addConstraint(Sketcher.Constraint("Horizontal", 0))
sketch14.addConstraint(Sketcher.Constraint("Vertical", 2))
sketch14.addConstraint(Sketcher.Constraint("Horizontal", 3))
sketch14.addConstraint(Sketcher.Constraint("Vertical", 4))
sketch14.addConstraint(Sketcher.Constraint("Vertical", 2, 2, 3, 2))
sketch14.addConstraint(Sketcher.Constraint("Vertical", 0, 2, 5, 2))
sketch14.addConstraint(Sketcher.Constraint("Equal", 2, 4))
sketch14.addConstraint(Sketcher.Constraint("Angle", 1, Q("-30 deg")))
sketch14.addConstraint(Sketcher.Constraint("DistanceY", 3, 2, 2, 2, 2.0))
sketch14.addConstraint(Sketcher.Constraint("DistanceX", -1, 1, 0, 2, 4.8))
sketch14.addConstraint(Sketcher.Constraint("DistanceY", -1, 1, 0, 2, 5.75))
sketch14.addConstraint(Sketcher.Constraint("DistanceX", 0, 2, 0, 1, 0.973503))
groove3 = body3.newObject("PartDesign::Groove", "Groove002")
groove3.Profile = sketch14
groove3.ReferenceAxis = (sketch14, ["V_Axis"])
groove3.Angle = 360
body4 = doc.addObject("PartDesign::Body", "Body003")

# Sketch on XY plane
sketch15 = body4.newObject("Sketcher::SketchObject", "Sketch014")
sketch15.AttachmentSupport = (doc.getObject("XY_Plane003"), [""])
sketch15.MapMode = "FlatFace"
sketch15.addGeometry(Part.LineSegment(V(1.45, 12, 0), V(1.45, 4, 0)), False)
sketch15.addGeometry(Part.LineSegment(V(1.45, 4, 0), V(1.75, 4, 0)), False)
sketch15.addGeometry(Part.LineSegment(V(1.75, 4, 0), V(1.75, 12, 0)), False)
sketch15.addGeometry(Part.LineSegment(V(1.75, 12, 0), V(1.45, 12, 0)), False)
sketch15.addConstraint(Sketcher.Constraint("Coincident", 0, 2, 1, 1))
sketch15.addConstraint(Sketcher.Constraint("Coincident", 1, 2, 2, 1))
sketch15.addConstraint(Sketcher.Constraint("Coincident", 2, 2, 3, 1))
sketch15.addConstraint(Sketcher.Constraint("Coincident", 3, 2, 0, 1))
sketch15.addConstraint(Sketcher.Constraint("Vertical", 0))
sketch15.addConstraint(Sketcher.Constraint("Horizontal", 1))
sketch15.addConstraint(Sketcher.Constraint("Vertical", 2))
sketch15.addConstraint(Sketcher.Constraint("Horizontal", 3))
sketch15.addConstraint(Sketcher.Constraint("DistanceY", 0, 2, 0, 1, 8.0))
sketch15.addConstraint(Sketcher.Constraint("DistanceX", 1, 1, 1, 2, 0.3))
sketch15.addConstraint(Sketcher.Constraint("DistanceY", -1, 1, 0, 2, 4.0))
sketch15.addConstraint(Sketcher.Constraint("DistanceX", -1, 1, 0, 2, 1.45))
revolution3 = body4.newObject("PartDesign::Revolution", "Revolution002")
revolution3.Profile = sketch15
revolution3.ReferenceAxis = (sketch15, ["V_Axis"])
revolution3.Angle = 360
body5 = doc.addObject("PartDesign::Body", "Body004")

# Sketch on XY plane
sketch16 = body5.newObject("Sketcher::SketchObject", "Sketch015")
sketch16.AttachmentSupport = (doc.getObject("XY_Plane004"), [""])
sketch16.MapMode = "FlatFace"
sketch16.addGeometry(Part.LineSegment(V(0, 13, 0), V(0, 12, 0)), False)
sketch16.addGeometry(Part.LineSegment(V(0, 12, 0), V(2.35, 12, 0)), False)
sketch16.addGeometry(Part.LineSegment(V(2.35, 12, 0), V(2.35, 9.3, 0)), False)
sketch16.addGeometry(Part.LineSegment(V(2.35, 9.3, 0), V(2.95, 9.3, 0)), False)
sketch16.addGeometry(Part.LineSegment(V(2.95, 9.3, 0), V(2.95, 12.8, 0)), False)
sketch16.addGeometry(Part.ArcOfCircle(Part.Circle(V(2.75, 12.8, 0), V(0, 0, 1), 0.2), math.radians(0), math.radians(90)), False)
sketch16.addGeometry(Part.LineSegment(V(2.75, 13, 0), V(0, 13, 0)), False)
sketch16.addConstraint(Sketcher.Constraint("Coincident", 0, 2, 1, 1))
sketch16.addConstraint(Sketcher.Constraint("Coincident", 1, 2, 2, 1))
sketch16.addConstraint(Sketcher.Constraint("Coincident", 2, 2, 3, 1))
sketch16.addConstraint(Sketcher.Constraint("Coincident", 3, 2, 4, 1))
sketch16.addConstraint(Sketcher.Constraint("Tangent", 4, 2, 5, 1))
sketch16.addConstraint(Sketcher.Constraint("Tangent", 5, 2, 6, 1))
sketch16.addConstraint(Sketcher.Constraint("Coincident", 6, 2, 0, 1))
sketch16.addConstraint(Sketcher.Constraint("Vertical", 0))
sketch16.addConstraint(Sketcher.Constraint("Horizontal", 1))
sketch16.addConstraint(Sketcher.Constraint("Vertical", 2))
sketch16.addConstraint(Sketcher.Constraint("Horizontal", 3))
sketch16.addConstraint(Sketcher.Constraint("Vertical", 4))
sketch16.addConstraint(Sketcher.Constraint("Horizontal", 6))
sketch16.addConstraint(Sketcher.Constraint("PointOnObject", 0, 2, -2))
sketch16.addConstraint(Sketcher.Constraint("Radius", 5, 0.2))
sketch16.addConstraint(Sketcher.Constraint("DistanceY", 0, 2, 0, 1, 1.0))
sketch16.addConstraint(Sketcher.Constraint("DistanceX", 3, 1, 3, 2, 0.6))
sketch16.addConstraint(Sketcher.Constraint("DistanceY", 2, 2, 2, 1, 2.7))
sketch16.addConstraint(Sketcher.Constraint("DistanceY", -1, 1, 0, 2, 12.0))
sketch16.addConstraint(Sketcher.Constraint("DistanceX", 1, 1, 1, 2, 2.35))
revolution4 = body5.newObject("PartDesign::Revolution", "Revolution003")
revolution4.Profile = sketch16
revolution4.ReferenceAxis = (sketch16, ["V_Axis"])
revolution4.Angle = 360

doc.recompute()
